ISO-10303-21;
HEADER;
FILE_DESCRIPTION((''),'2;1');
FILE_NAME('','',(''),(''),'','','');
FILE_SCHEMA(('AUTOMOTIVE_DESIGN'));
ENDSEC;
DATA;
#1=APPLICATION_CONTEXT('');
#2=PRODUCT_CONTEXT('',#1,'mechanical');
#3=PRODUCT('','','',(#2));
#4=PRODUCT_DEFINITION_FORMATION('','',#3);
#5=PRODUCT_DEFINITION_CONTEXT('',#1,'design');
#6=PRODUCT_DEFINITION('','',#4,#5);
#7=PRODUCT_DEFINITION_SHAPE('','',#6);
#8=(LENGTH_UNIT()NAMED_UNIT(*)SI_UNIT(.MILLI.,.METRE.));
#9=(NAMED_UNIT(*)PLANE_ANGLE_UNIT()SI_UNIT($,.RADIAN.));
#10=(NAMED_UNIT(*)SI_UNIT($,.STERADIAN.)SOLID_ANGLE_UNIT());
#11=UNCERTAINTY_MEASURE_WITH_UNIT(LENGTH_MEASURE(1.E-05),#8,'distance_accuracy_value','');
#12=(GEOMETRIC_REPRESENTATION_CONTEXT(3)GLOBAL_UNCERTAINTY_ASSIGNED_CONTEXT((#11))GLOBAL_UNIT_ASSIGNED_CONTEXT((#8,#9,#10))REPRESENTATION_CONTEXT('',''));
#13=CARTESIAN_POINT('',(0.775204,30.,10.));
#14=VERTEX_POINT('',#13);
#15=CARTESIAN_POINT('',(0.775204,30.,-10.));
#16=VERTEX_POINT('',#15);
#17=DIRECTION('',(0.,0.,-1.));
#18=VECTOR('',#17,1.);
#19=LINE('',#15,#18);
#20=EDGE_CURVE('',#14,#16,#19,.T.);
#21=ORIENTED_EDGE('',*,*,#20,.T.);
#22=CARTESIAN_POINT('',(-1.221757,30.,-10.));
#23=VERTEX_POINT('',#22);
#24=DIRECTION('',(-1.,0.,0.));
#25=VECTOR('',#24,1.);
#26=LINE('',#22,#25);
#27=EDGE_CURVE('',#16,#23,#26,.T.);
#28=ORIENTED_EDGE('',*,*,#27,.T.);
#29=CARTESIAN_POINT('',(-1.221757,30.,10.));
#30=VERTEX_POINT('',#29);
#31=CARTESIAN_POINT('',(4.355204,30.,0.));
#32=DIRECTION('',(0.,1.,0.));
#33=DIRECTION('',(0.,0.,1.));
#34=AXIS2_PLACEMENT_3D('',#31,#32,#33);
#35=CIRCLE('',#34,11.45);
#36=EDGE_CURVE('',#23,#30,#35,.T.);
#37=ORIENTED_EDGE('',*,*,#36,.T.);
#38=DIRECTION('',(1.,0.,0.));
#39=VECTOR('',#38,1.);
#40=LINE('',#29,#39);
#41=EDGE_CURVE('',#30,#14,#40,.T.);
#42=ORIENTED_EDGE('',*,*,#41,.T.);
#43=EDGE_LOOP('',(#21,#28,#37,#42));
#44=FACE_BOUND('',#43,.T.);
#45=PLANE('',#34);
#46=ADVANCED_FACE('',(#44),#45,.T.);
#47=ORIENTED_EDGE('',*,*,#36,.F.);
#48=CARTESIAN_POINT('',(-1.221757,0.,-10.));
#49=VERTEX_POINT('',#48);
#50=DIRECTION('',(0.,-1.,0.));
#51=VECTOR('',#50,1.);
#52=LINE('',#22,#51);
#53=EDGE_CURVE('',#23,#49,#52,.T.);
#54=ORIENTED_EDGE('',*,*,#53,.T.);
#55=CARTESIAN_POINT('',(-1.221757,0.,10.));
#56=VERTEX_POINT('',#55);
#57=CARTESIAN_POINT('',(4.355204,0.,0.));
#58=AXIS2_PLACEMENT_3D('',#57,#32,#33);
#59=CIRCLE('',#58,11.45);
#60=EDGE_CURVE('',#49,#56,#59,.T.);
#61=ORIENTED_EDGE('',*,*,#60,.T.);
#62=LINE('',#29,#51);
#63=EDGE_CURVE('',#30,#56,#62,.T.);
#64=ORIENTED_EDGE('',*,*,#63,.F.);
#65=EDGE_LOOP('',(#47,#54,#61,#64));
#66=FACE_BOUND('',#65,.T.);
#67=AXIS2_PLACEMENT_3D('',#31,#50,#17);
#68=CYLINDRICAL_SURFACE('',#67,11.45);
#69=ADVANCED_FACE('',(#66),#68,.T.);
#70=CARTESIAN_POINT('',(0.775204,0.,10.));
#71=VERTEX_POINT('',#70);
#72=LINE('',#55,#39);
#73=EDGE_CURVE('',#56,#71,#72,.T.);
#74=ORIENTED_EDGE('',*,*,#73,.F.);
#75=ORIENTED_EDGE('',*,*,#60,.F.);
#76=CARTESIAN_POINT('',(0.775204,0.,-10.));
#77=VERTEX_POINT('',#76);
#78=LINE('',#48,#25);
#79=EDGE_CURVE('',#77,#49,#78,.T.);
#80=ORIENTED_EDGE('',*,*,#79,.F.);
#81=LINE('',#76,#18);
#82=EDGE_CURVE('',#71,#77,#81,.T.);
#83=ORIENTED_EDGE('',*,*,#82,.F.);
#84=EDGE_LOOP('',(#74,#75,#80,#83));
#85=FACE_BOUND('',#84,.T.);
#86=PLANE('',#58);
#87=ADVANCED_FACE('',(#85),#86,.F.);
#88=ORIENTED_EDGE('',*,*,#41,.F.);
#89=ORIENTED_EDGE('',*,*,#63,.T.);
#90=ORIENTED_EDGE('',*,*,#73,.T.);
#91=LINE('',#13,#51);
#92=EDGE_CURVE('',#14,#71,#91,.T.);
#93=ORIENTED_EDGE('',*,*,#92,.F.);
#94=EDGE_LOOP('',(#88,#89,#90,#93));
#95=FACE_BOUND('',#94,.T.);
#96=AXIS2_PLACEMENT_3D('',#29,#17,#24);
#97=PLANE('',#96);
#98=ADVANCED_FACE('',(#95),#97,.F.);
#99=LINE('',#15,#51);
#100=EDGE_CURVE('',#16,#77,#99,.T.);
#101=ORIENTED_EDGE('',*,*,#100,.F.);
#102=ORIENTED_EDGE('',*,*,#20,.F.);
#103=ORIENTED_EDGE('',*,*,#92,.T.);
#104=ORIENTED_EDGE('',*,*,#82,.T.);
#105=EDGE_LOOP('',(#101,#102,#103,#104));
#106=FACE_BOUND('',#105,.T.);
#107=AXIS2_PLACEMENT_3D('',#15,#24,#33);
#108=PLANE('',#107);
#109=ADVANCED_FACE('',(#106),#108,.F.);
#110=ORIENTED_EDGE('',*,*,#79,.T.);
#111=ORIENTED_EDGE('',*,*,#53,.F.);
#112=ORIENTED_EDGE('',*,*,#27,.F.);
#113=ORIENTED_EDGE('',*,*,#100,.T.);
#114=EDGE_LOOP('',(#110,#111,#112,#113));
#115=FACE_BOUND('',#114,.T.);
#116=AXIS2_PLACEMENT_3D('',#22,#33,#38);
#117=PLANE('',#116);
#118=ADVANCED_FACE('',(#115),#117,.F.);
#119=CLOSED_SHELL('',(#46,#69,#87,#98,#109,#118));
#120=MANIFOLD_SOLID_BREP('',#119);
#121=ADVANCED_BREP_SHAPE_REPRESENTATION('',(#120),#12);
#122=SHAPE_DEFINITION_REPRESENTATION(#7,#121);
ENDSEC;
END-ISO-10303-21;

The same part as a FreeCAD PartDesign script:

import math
import FreeCAD as App
import Part
import Sketcher
from FreeCAD import Vector
Q = App.Units.Quantity

doc = App.newDocument("Part")
body = doc.addObject("PartDesign::Body", "Body")

# Sketch on XZ plane
sketch1 = body.newObject("Sketcher::SketchObject", "Sketch")
sketch1.AttachmentSupport = (doc.getObject("XZ_Plane"), [""])
sketch1.MapMode = "FlatFace"
sketch1.addGeometry([
    Part.LineSegment(Vector(0.8, -10, 0), Vector(-1.2, -10, 0)),
    Part.ArcOfCircle(Part.Circle(Vector(4.4, 0, 0), Vector(0, 0, 1), 11.4), math.radians(119), math.radians(241)),
    Part.LineSegment(Vector(-1.2, 10, 0), Vector(0.8, 10, 0)),
    Part.LineSegment(Vector(0.8, 10, 0), Vector(0.8, -10, 0)),
], False)
sketch1.addConstraint([
    Sketcher.Constraint("Coincident", 0, 2, 1, 2),
    Sketcher.Constraint("Coincident", 1, 1, 2, 1),
    Sketcher.Constraint("Coincident", 2, 2, 3, 1),
    Sketcher.Constraint("Coincident", 3, 2, 0, 1),
    Sketcher.Constraint("Horizontal", 0),
    Sketcher.Constraint("Horizontal", 2),
    Sketcher.Constraint("Vertical", 3),
    Sketcher.Constraint("Symmetric", 0, 2, 1, 1, -1),
    Sketcher.Constraint("DistanceY", 3, 2, 3, 1, Q("20 mm")),
    Sketcher.Constraint("Radius", 1, Q("11.45 mm")),
    Sketcher.Constraint("DistanceX", 2, 2, 1, 3, Q("3.58 mm")),
    Sketcher.Constraint("DistanceX", -1, 1, 1, 3, Q("4.355204 mm")),
])
pad1 = body.newObject("PartDesign::Pad", "Pad")
pad1.Profile = sketch1
pad1.Length = 30
pad1.Reversed = True

doc.recompute()
